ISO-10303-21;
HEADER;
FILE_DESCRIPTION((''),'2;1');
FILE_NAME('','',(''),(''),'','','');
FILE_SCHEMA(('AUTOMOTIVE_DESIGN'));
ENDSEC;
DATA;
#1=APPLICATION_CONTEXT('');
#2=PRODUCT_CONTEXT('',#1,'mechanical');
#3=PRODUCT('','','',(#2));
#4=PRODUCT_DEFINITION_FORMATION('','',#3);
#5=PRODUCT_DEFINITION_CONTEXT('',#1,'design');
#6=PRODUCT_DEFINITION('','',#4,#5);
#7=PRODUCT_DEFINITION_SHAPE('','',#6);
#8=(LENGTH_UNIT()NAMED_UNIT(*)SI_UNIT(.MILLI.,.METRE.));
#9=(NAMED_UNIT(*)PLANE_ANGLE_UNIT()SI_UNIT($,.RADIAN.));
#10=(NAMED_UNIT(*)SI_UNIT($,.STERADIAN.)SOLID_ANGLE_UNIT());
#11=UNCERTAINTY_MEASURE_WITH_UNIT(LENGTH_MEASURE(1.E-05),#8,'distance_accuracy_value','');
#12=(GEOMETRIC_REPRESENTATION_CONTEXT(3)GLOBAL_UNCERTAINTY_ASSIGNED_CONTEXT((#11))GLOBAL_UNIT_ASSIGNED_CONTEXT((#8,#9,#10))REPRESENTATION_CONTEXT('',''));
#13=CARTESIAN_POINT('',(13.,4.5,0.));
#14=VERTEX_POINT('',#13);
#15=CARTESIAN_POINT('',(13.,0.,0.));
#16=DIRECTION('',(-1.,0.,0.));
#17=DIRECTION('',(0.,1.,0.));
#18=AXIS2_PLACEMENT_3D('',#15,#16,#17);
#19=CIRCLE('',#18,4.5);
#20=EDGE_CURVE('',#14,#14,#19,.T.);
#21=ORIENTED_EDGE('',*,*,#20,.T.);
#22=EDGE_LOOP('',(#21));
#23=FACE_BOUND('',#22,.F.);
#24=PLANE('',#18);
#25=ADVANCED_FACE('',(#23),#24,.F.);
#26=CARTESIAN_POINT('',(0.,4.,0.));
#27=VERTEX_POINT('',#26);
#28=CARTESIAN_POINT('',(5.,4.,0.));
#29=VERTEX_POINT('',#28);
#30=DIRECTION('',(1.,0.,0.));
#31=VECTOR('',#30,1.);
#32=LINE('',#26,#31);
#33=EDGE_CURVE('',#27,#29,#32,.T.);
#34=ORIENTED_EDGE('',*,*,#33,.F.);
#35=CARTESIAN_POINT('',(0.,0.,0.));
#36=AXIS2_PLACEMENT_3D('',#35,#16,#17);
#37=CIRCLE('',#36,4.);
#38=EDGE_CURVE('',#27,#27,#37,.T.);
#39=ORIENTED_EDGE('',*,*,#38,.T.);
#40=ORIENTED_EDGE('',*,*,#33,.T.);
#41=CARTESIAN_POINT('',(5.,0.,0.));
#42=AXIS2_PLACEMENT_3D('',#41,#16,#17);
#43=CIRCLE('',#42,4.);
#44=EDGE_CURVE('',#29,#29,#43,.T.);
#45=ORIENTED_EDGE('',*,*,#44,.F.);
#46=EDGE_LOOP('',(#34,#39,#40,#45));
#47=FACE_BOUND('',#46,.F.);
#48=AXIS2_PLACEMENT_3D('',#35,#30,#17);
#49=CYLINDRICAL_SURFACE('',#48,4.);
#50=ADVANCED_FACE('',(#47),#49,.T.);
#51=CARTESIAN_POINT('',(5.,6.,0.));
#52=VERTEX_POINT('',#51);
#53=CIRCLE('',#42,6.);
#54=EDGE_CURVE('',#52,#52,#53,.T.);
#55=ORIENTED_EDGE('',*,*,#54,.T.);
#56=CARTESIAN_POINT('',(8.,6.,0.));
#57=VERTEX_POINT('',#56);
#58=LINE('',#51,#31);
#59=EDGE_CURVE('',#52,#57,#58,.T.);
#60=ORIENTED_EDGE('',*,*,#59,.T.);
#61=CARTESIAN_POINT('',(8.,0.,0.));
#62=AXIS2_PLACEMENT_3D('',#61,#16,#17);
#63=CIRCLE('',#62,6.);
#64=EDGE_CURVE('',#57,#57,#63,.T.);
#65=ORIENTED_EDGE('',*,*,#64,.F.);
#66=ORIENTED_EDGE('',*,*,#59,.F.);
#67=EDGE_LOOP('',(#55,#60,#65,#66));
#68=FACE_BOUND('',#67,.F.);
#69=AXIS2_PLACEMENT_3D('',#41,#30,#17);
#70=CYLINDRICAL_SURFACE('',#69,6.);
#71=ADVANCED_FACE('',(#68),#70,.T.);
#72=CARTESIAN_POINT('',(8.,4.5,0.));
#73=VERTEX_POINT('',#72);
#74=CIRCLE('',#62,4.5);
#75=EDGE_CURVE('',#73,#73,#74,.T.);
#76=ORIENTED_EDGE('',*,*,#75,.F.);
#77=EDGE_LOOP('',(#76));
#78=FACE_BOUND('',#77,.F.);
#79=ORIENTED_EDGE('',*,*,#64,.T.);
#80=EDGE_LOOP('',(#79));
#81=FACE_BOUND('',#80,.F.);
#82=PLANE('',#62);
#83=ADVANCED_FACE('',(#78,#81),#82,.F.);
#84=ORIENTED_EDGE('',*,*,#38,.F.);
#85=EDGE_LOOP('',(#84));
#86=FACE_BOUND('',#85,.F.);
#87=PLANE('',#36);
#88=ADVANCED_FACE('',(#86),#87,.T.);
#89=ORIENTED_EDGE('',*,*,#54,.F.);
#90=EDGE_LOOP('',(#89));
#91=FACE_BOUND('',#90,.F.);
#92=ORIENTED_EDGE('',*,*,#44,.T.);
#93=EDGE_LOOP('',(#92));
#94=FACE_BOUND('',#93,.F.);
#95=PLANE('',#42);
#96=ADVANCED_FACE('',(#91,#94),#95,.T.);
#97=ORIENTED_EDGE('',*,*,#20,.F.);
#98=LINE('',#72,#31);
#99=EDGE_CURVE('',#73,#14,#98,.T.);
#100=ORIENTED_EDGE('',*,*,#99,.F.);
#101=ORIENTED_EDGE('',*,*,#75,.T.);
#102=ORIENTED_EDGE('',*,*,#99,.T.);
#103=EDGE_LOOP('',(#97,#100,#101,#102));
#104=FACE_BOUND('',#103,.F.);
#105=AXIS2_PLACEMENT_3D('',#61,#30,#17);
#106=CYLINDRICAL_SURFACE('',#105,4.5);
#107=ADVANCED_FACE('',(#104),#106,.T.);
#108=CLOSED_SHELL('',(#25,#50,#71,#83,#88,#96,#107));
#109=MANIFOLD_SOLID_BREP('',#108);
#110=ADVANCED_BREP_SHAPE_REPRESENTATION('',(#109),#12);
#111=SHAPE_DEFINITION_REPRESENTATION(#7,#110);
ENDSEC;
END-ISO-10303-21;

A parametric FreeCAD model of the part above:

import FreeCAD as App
import Part
import Sketcher

V = App.Vector

doc = App.newDocument("Part")
body = doc.addObject("PartDesign::Body", "Body")

# Sketch on XY plane
sketch1 = body.newObject("Sketcher::SketchObject", "Sketch")
sketch1.AttachmentSupport = (doc.getObject("XY_Plane"), [""])
sketch1.MapMode = "FlatFace"
sketch1.addGeometry([
    Part.LineSegment(V(0, 4, 0), V(0, 0, 0)),  # 0
    Part.LineSegment(V(0, 0, 0), V(13, 0, 0)),  # 1
    Part.LineSegment(V(13, 0, 0), V(13, 4.5, 0)),  # 2
    Part.LineSegment(V(13, 4.5, 0), V(8, 4.5, 0)),  # 3
    Part.LineSegment(V(8, 4.5, 0), V(8, 6, 0)),  # 4
    Part.LineSegment(V(8, 6, 0), V(5, 6, 0)),  # 5
    Part.LineSegment(V(5, 6, 0), V(5, 4, 0)),  # 6
    Part.LineSegment(V(5, 4, 0), V(0, 4, 0)),  # 7
], False)
sketch1.addConstraint([
    Sketcher.Constraint("Coincident", 0, 2, 1, 1),
    Sketcher.Constraint("Coincident", 1, 2, 2, 1),
    Sketcher.Constraint("Coincident", 2, 2, 3, 1),
    Sketcher.Constraint("Coincident", 3, 2, 4, 1),
    Sketcher.Constraint("Coincident", 4, 2, 5, 1),
    Sketcher.Constraint("Coincident", 5, 2, 6, 1),
    Sketcher.Constraint("Coincident", 6, 2, 7, 1),
    Sketcher.Constraint("Coincident", 7, 2, 0, 1),
    Sketcher.Constraint("Vertical", 0),
    Sketcher.Constraint("Horizontal", 1),
    Sketcher.Constraint("Vertical", 2),
    Sketcher.Constraint("Horizontal", 3),
    Sketcher.Constraint("Vertical", 4),
    Sketcher.Constraint("Horizontal", 5),
    Sketcher.Constraint("Vertical", 6),
    Sketcher.Constraint("Horizontal", 7),
    Sketcher.Constraint("Coincident", 0, 2, -1, 1),
    Sketcher.Constraint("Equal", 3, 7),
    Sketcher.Constraint("DistanceX", 3, 2, 3, 1, 5.0),
    Sketcher.Constraint("DistanceX", 5, 2, 5, 1, 3.0),
    Sketcher.Constraint("DistanceY", 0, 2, 0, 1, 4.0),
    Sketcher.Constraint("DistanceY", 6, 2, 6, 1, 2.0),
    Sketcher.Constraint("DistanceY", 2, 1, 2, 2, 4.5),
])
revolution = body.newObject("PartDesign::Revolution", "Revolution")
revolution.Profile = sketch1
revolution.ReferenceAxis = (sketch1, ["H_Axis"])
revolution.Angle = 360

doc.recompute()
